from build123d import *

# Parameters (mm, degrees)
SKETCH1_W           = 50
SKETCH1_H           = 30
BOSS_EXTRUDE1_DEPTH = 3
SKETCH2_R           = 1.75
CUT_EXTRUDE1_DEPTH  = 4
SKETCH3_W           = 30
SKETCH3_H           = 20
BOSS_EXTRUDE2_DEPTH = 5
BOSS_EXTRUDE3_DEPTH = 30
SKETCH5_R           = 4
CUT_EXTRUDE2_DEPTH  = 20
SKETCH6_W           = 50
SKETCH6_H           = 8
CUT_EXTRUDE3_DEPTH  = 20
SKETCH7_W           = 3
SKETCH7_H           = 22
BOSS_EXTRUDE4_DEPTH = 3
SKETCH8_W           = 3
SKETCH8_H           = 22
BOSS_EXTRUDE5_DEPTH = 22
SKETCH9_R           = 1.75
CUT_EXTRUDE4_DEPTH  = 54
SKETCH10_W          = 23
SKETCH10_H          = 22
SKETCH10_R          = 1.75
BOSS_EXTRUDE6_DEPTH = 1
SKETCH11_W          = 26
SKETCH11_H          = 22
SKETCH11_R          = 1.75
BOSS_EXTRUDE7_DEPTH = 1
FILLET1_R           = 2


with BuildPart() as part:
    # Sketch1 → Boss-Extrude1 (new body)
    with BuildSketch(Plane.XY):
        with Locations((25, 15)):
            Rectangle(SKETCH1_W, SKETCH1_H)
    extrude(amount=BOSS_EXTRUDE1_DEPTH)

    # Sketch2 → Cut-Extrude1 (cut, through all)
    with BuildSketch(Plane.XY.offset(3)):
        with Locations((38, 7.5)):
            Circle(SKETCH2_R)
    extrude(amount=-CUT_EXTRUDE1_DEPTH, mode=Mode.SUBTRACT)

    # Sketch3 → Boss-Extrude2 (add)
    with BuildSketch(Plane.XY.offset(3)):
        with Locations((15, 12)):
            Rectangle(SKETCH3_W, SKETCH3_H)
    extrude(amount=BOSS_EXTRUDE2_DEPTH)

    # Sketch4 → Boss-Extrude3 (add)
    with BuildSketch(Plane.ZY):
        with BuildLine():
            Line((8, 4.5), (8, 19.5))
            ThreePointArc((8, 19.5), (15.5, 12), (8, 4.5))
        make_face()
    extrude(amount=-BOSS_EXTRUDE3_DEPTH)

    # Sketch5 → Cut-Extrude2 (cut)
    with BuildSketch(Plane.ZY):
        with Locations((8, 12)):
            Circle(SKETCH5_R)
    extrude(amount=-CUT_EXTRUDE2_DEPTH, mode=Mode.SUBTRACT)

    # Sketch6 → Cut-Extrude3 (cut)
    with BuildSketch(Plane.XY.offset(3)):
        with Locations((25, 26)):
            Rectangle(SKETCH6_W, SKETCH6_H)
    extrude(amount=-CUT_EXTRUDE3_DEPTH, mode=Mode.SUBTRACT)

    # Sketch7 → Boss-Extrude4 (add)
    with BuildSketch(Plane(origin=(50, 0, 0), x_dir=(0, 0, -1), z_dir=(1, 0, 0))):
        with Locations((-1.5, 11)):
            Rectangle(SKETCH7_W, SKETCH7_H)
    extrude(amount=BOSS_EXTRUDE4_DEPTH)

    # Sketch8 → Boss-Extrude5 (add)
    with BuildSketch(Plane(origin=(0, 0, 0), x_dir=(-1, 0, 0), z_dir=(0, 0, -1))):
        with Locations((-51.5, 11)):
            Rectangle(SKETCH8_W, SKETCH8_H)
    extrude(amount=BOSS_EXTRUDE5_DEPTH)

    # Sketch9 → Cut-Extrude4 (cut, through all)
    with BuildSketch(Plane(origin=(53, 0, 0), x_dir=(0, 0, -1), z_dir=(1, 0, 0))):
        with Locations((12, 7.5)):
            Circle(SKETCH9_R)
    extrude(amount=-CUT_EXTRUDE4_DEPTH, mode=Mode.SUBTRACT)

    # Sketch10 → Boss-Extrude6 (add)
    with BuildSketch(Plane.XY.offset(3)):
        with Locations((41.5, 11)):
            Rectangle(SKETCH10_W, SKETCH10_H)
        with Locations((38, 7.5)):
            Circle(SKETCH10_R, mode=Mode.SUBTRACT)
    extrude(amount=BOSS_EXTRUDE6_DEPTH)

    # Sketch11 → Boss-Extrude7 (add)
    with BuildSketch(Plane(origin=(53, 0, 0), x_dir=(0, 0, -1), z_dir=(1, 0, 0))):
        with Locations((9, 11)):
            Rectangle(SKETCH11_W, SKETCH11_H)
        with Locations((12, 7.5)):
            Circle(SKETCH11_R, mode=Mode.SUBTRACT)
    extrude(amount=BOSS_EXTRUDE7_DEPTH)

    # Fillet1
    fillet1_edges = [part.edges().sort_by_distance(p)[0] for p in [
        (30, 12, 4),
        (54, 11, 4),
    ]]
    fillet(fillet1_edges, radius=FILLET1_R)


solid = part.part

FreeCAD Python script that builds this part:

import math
import FreeCAD as App
import Part
import Sketcher

V = App.Vector
Q = App.Units.Quantity


def edges_at(feature, points):
    """Names of the edges that pass closest to the given points."""
    edges = feature.Shape.Edges
    near = lambda p: min(range(len(edges)), key=lambda i: edges[i].distToShape(Part.Vertex(*p))[0])
    return sorted({f"Edge{near(p) + 1}" for p in points})


def add_polygon(sketch, points):
    """Adds a closed chain of lines whose ends are joined by coincident constraints."""
    first, n = sketch.GeometryCount, len(points)
    for a, b in zip(points, points[1:] + points[:1]):
        sketch.addGeometry(Part.LineSegment(App.Vector(*a, 0), App.Vector(*b, 0)), False)
    for i in range(n):
        sketch.addConstraint(Sketcher.Constraint("Coincident", first + i, 2, first + (i + 1) % n, 1))

doc = App.newDocument("Part")
body = doc.addObject("PartDesign::Body", "Body")

# Sketch on XY plane
sketch1 = body.newObject("Sketcher::SketchObject", "Sketch")
sketch1.AttachmentSupport = (doc.getObject("XY_Plane"), [""])
sketch1.MapMode = "FlatFace"
add_polygon(sketch1, [(0, 30), (0, 0), (50, 0), (50, 30)])  # lines 0-3
sketch1.addConstraint(Sketcher.Constraint("Vertical", 0))
sketch1.addConstraint(Sketcher.Constraint("Horizontal", 1))
sketch1.addConstraint(Sketcher.Constraint("Vertical", 2))
sketch1.addConstraint(Sketcher.Constraint("Horizontal", 3))
sketch1.addConstraint(Sketcher.Constraint("Coincident", 0, 2, -1, 1))
sketch1.addConstraint(Sketcher.Constraint("DistanceX", 1, 1, 1, 2, Q("50 mm")))
sketch1.addConstraint(Sketcher.Constraint("DistanceY", 0, 2, 0, 1, Q("30 mm")))
pad1 = body.newObject("PartDesign::Pad", "Pad")
pad1.Profile = sketch1
pad1.Length = 3

# Sketch on XY plane
sketch2 = body.newObject("Sketcher::SketchObject", "Sketch001")
sketch2.AttachmentSupport = (doc.getObject("XY_Plane"), [""])
sketch2.MapMode = "FlatFace"
sketch2.AttachmentOffset = App.Placement(V(0, 0, 3), App.Rotation())
sketch2.addGeometry(Part.Circle(V(38, 7.5, 0), V(0, 0, 1), 1.75), False)
sketch2.addConstraint(Sketcher.Constraint("Diameter", 0, Q("3.5 mm")))
sketch2.addConstraint(Sketcher.Constraint("DistanceX", -1, 1, 0, 3, Q("38 mm")))
sketch2.addConstraint(Sketcher.Constraint("DistanceY", -1, 1, 0, 3, Q("7.5 mm")))
pocket1 = body.newObject("PartDesign::Pocket", "Pocket")
pocket1.Profile = sketch2
pocket1.Type = "ThroughAll"

# Sketch on XY plane
sketch3 = body.newObject("Sketcher::SketchObject", "Sketch002")
sketch3.AttachmentSupport = (doc.getObject("XY_Plane"), [""])
sketch3.MapMode = "FlatFace"
sketch3.AttachmentOffset = App.Placement(V(0, 0, 3), App.Rotation())
add_polygon(sketch3, [(0, 22), (0, 2), (30, 2), (30, 22)])  # lines 0-3
sketch3.addConstraint(Sketcher.Constraint("Vertical", 0))
sketch3.addConstraint(Sketcher.Constraint("Horizontal", 1))
sketch3.addConstraint(Sketcher.Constraint("Vertical", 2))
sketch3.addConstraint(Sketcher.Constraint("Horizontal", 3))
sketch3.addConstraint(Sketcher.Constraint("PointOnObject", 0, 2, -2))
sketch3.addConstraint(Sketcher.Constraint("DistanceX", 1, 1, 1, 2, Q("30 mm")))
sketch3.addConstraint(Sketcher.Constraint("DistanceY", 0, 2, 0, 1, Q("20 mm")))
sketch3.addConstraint(Sketcher.Constraint("DistanceY", -1, 1, 0, 2, Q("2 mm")))
pad2 = body.newObject("PartDesign::Pad", "Pad001")
pad2.Profile = sketch3
pad2.Length = 5

# Sketch on YZ plane
sketch4 = body.newObject("Sketcher::SketchObject", "Sketch003")
sketch4.AttachmentSupport = (doc.getObject("YZ_Plane"), [""])
sketch4.MapMode = "FlatFace"
sketch4.addGeometry(Part.LineSegment(V(19.5, 8, 0), V(4.5, 8, 0)), False)
sketch4.addGeometry(Part.ArcOfCircle(Part.Circle(V(12, 8, 0), V(0, 0, 1), 7.5), math.radians(0), math.radians(180)), False)
sketch4.addConstraint(Sketcher.Constraint("Coincident", 0, 1, 1, 1))
sketch4.addConstraint(Sketcher.Constraint("Coincident", 1, 2, 0, 2))
sketch4.addConstraint(Sketcher.Constraint("Horizontal", 0))
sketch4.addConstraint(Sketcher.Constraint("Horizontal", 1, 3, 0, 1))
sketch4.addConstraint(Sketcher.Constraint("Radius", 1, Q("7.5 mm")))
sketch4.addConstraint(Sketcher.Constraint("DistanceX", -1, 1, 1, 3, Q("12 mm")))
sketch4.addConstraint(Sketcher.Constraint("DistanceY", -1, 1, 1, 3, Q("8 mm")))
pad3 = body.newObject("PartDesign::Pad", "Pad002")
pad3.Profile = sketch4
pad3.Length = 30

# Sketch on YZ plane
sketch5 = body.newObject("Sketcher::SketchObject", "Sketch004")
sketch5.AttachmentSupport = (doc.getObject("YZ_Plane"), [""])
sketch5.MapMode = "FlatFace"
sketch5.addGeometry(Part.Circle(V(12, 8, 0), V(0, 0, 1), 4), False)
sketch5.addConstraint(Sketcher.Constraint("Diameter", 0, Q("8 mm")))
sketch5.addConstraint(Sketcher.Constraint("DistanceX", -1, 1, 0, 3, Q("12 mm")))
sketch5.addConstraint(Sketcher.Constraint("DistanceY", -1, 1, 0, 3, Q("8 mm")))
pocket2 = body.newObject("PartDesign::Pocket", "Pocket001")
pocket2.Profile = sketch5
pocket2.Length = 20
pocket2.Reversed = True

# Sketch on XY plane
sketch6 = body.newObject("Sketcher::SketchObject", "Sketch005")
sketch6.AttachmentSupport = (doc.getObject("XY_Plane"), [""])
sketch6.MapMode = "FlatFace"
sketch6.AttachmentOffset = App.Placement(V(0, 0, 3), App.Rotation())
add_polygon(sketch6, [(0, 30), (0, 22), (50, 22), (50, 30)])  # lines 0-3
sketch6.addConstraint(Sketcher.Constraint("Vertical", 0))
sketch6.addConstraint(Sketcher.Constraint("Horizontal", 1))
sketch6.addConstraint(Sketcher.Constraint("Vertical", 2))
sketch6.addConstraint(Sketcher.Constraint("Horizontal", 3))
sketch6.addConstraint(Sketcher.Constraint("PointOnObject", 0, 2, -2))
sketch6.addConstraint(Sketcher.Constraint("DistanceX", 1, 1, 1, 2, Q("50 mm")))
sketch6.addConstraint(Sketcher.Constraint("DistanceY", 0, 2, 0, 1, Q("8 mm")))
sketch6.addConstraint(Sketcher.Constraint("DistanceY", -1, 1, 0, 2, Q("22 mm")))
pocket3 = body.newObject("PartDesign::Pocket", "Pocket002")
pocket3.Profile = sketch6
pocket3.Length = 20

# Sketch on YZ plane
sketch7 = body.newObject("Sketcher::SketchObject", "Sketch006")
sketch7.AttachmentSupport = (doc.getObject("YZ_Plane"), [""])
sketch7.MapMode = "FlatFace"
sketch7.AttachmentOffset = App.Placement(V(0, 0, 50), App.Rotation())
add_polygon(sketch7, [(22, 3), (0, 3), (0, 0), (22, 0)])  # lines 0-3
sketch7.addConstraint(Sketcher.Constraint("Horizontal", 0))
sketch7.addConstraint(Sketcher.Constraint("Vertical", 1))
sketch7.addConstraint(Sketcher.Constraint("Horizontal", 2))
sketch7.addConstraint(Sketcher.Constraint("Vertical", 3))
sketch7.addConstraint(Sketcher.Constraint("Coincident", 1, 2, -1, 1))
sketch7.addConstraint(Sketcher.Constraint("DistanceX", 0, 2, 0, 1, Q("22 mm")))
sketch7.addConstraint(Sketcher.Constraint("DistanceY", 1, 2, 1, 1, Q("3 mm")))
pad4 = body.newObject("PartDesign::Pad", "Pad003")
pad4.Profile = sketch7
pad4.Length = 3

# Sketch on XY plane
sketch8 = body.newObject("Sketcher::SketchObject", "Sketch007")
sketch8.AttachmentSupport = (doc.getObject("XY_Plane"), [""])
sketch8.MapMode = "FlatFace"
add_polygon(sketch8, [(53, 22), (53, 0), (50, 0), (50, 22)])  # lines 0-3
sketch8.addConstraint(Sketcher.Constraint("Vertical", 0))
sketch8.addConstraint(Sketcher.Constraint("Horizontal", 1))
sketch8.addConstraint(Sketcher.Constraint("Vertical", 2))
sketch8.addConstraint(Sketcher.Constraint("Horizontal", 3))
sketch8.addConstraint(Sketcher.Constraint("PointOnObject", 0, 2, -1))
sketch8.addConstraint(Sketcher.Constraint("DistanceX", 1, 2, 1, 1, Q("3 mm")))
sketch8.addConstraint(Sketcher.Constraint("DistanceY", 0, 2, 0, 1, Q("22 mm")))
sketch8.addConstraint(Sketcher.Constraint("DistanceX", -1, 1, 0, 2, Q("53 mm")))
pad5 = body.newObject("PartDesign::Pad", "Pad004")
pad5.Profile = sketch8
pad5.Length = 22
pad5.Reversed = True

# Sketch on YZ plane
sketch9 = body.newObject("Sketcher::SketchObject", "Sketch008")
sketch9.AttachmentSupport = (doc.getObject("YZ_Plane"), [""])
sketch9.MapMode = "FlatFace"
sketch9.AttachmentOffset = App.Placement(V(0, 0, 53), App.Rotation())
sketch9.addGeometry(Part.Circle(V(7.5, -12, 0), V(0, 0, 1), 1.75), False)
sketch9.addConstraint(Sketcher.Constraint("Diameter", 0, Q("3.5 mm")))
sketch9.addConstraint(Sketcher.Constraint("DistanceY", 0, 3, -1, 1, Q("12 mm")))
sketch9.addConstraint(Sketcher.Constraint("DistanceX", -1, 1, 0, 3, Q("7.5 mm")))
pocket4 = body.newObject("PartDesign::Pocket", "Pocket003")
pocket4.Profile = sketch9
pocket4.Type = "ThroughAll"

# Sketch on XY plane
sketch10 = body.newObject("Sketcher::SketchObject", "Sketch009")
sketch10.AttachmentSupport = (doc.getObject("XY_Plane"), [""])
sketch10.MapMode = "FlatFace"
sketch10.AttachmentOffset = App.Placement(V(0, 0, 3), App.Rotation())
add_polygon(sketch10, [(30, 22), (30, 0), (53, 0), (53, 22)])  # lines 0-3
sketch10.addGeometry(Part.Circle(V(38, 7.5, 0), V(0, 0, 1), 1.75), False)  # 4
sketch10.addConstraint(Sketcher.Constraint("Vertical", 0))
sketch10.addConstraint(Sketcher.Constraint("Horizontal", 1))
sketch10.addConstraint(Sketcher.Constraint("Vertical", 2))
sketch10.addConstraint(Sketcher.Constraint("Horizontal", 3))
sketch10.addConstraint(Sketcher.Constraint("PointOnObject", 0, 2, -1))
sketch10.addConstraint(Sketcher.Constraint("Diameter", 4, Q("3.5 mm")))
sketch10.addConstraint(Sketcher.Constraint("DistanceX", 1, 1, 1, 2, Q("23 mm")))
sketch10.addConstraint(Sketcher.Constraint("DistanceY", 0, 2, 0, 1, Q("22 mm")))
sketch10.addConstraint(Sketcher.Constraint("DistanceX", -1, 1, 4, 3, Q("38 mm")))
sketch10.addConstraint(Sketcher.Constraint("DistanceX", -1, 1, 0, 2, Q("30 mm")))
sketch10.addConstraint(Sketcher.Constraint("DistanceY", -1, 1, 4, 3, Q("7.5 mm")))
pad6 = body.newObject("PartDesign::Pad", "Pad005")
pad6.Profile = sketch10
pad6.Length = 1

# Sketch on YZ plane
sketch11 = body.newObject("Sketcher::SketchObject", "Sketch010")
sketch11.AttachmentSupport = (doc.getObject("YZ_Plane"), [""])
sketch11.MapMode = "FlatFace"
sketch11.AttachmentOffset = App.Placement(V(0, 0, 53), App.Rotation())
add_polygon(sketch11, [(22, 4), (0, 4), (0, -22), (22, -22)])  # lines 0-3
sketch11.addGeometry(Part.Circle(V(7.5, -12, 0), V(0, 0, 1), 1.75), False)  # 4
sketch11.addConstraint(Sketcher.Constraint("Horizontal", 0))
sketch11.addConstraint(Sketcher.Constraint("Vertical", 1))
sketch11.addConstraint(Sketcher.Constraint("Horizontal", 2))
sketch11.addConstraint(Sketcher.Constraint("Vertical", 3))
sketch11.addConstraint(Sketcher.Constraint("PointOnObject", 0, 2, -2))
sketch11.addConstraint(Sketcher.Constraint("Diameter", 4, Q("3.5 mm")))
sketch11.addConstraint(Sketcher.Constraint("DistanceX", 0, 2, 0, 1, Q("22 mm")))
sketch11.addConstraint(Sketcher.Constraint("DistanceY", 1, 2, 1, 1, Q("26 mm")))
sketch11.addConstraint(Sketcher.Constraint("DistanceY", 4, 3, -1, 1, Q("12 mm")))
sketch11.addConstraint(Sketcher.Constraint("DistanceY", -1, 1, 0, 2, Q("4 mm")))
sketch11.addConstraint(Sketcher.Constraint("DistanceX", -1, 1, 4, 3, Q("7.5 mm")))
pad7 = body.newObject("PartDesign::Pad", "Pad006")
pad7.Profile = sketch11
pad7.Length = 1
doc.recompute()

fillet = body.newObject("PartDesign::Fillet", "Fillet")
fillet.Base = (pad7, edges_at(pad7, [(30, 12, 4), (54, 11, 4)]))
fillet.Radius = 2

doc.recompute()
